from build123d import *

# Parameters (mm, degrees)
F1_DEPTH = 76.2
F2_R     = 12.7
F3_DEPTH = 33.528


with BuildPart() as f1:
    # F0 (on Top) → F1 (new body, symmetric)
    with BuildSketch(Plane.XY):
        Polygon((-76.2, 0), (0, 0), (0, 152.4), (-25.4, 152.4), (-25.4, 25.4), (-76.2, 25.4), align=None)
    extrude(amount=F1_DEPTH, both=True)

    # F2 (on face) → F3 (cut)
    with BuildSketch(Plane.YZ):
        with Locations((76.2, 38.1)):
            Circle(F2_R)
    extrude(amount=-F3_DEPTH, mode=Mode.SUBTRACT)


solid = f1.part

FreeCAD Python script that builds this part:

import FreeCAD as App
import Part
import Sketcher

V = App.Vector
Q = App.Units.Quantity

doc = App.newDocument("Part")
body = doc.addObject("PartDesign::Body", "Body")

# Sketch on XY plane
sketch1 = body.newObject("Sketcher::SketchObject", "Sketch")
sketch1.AttachmentSupport = (doc.getObject("XY_Plane"), [""])
sketch1.MapMode = "FlatFace"
sketch1.addGeometry([
    Part.LineSegment(V(-76, 0, 0), V(0, 0, 0)),  # 0
    Part.LineSegment(V(0, 0, 0), V(0, 152, 0)),  # 1
    Part.LineSegment(V(0, 152, 0), V(-25, 152, 0)),  # 2
    Part.LineSegment(V(-25, 152, 0), V(-25, 25, 0)),  # 3
    Part.LineSegment(V(-25, 25, 0), V(-76, 25, 0)),  # 4
    Part.LineSegment(V(-76, 25, 0), V(-76, 0, 0)),  # 5
], False)
sketch1.addConstraint([
    Sketcher.Constraint("Coincident", 0, 2, 1, 1),
    Sketcher.Constraint("Coincident", 1, 2, 2, 1),
    Sketcher.Constraint("Coincident", 2, 2, 3, 1),
    Sketcher.Constraint("Coincident", 3, 2, 4, 1),
    Sketcher.Constraint("Coincident", 4, 2, 5, 1),
    Sketcher.Constraint("Coincident", 5, 2, 0, 1),
    Sketcher.Constraint("Horizontal", 0),
    Sketcher.Constraint("Vertical", 1),
    Sketcher.Constraint("Horizontal", 2),
    Sketcher.Constraint("Vertical", 3),
    Sketcher.Constraint("Horizontal", 4),
    Sketcher.Constraint("Vertical", 5),
    Sketcher.Constraint("Coincident", 0, 2, -1, 1),
    Sketcher.Constraint("Equal", 2, 5),
    Sketcher.Constraint("DistanceX", 0, 1, 0, 2, Q("3 in")),
    Sketcher.Constraint("DistanceX", 2, 2, 2, 1, Q("1 in")),
    Sketcher.Constraint("DistanceY", 1, 1, 1, 2, Q("6 in")),
])
pad1 = body.newObject("PartDesign::Pad", "Pad")
pad1.Profile = sketch1
pad1.Length = Q("6 in")
pad1.Midplane = True

# Sketch on YZ plane
sketch2 = body.newObject("Sketcher::SketchObject", "Sketch001")
sketch2.AttachmentSupport = (doc.getObject("YZ_Plane"), [""])
sketch2.MapMode = "FlatFace"
sketch2.addGeometry(Part.Circle(V(76, 38, 0), V(0, 0, 1), 13), False)
sketch2.addConstraint([
    Sketcher.Constraint("Diameter", 0, Q("1 in")),
    Sketcher.Constraint("DistanceX", -1, 1, 0, 3, Q("3 in")),
    Sketcher.Constraint("DistanceY", -1, 1, 0, 3, Q("1.5 in")),
])
pocket1 = body.newObject("PartDesign::Pocket", "Pocket")
pocket1.Profile = sketch2
pocket1.Length = Q("1.32 in")

doc.recompute()
